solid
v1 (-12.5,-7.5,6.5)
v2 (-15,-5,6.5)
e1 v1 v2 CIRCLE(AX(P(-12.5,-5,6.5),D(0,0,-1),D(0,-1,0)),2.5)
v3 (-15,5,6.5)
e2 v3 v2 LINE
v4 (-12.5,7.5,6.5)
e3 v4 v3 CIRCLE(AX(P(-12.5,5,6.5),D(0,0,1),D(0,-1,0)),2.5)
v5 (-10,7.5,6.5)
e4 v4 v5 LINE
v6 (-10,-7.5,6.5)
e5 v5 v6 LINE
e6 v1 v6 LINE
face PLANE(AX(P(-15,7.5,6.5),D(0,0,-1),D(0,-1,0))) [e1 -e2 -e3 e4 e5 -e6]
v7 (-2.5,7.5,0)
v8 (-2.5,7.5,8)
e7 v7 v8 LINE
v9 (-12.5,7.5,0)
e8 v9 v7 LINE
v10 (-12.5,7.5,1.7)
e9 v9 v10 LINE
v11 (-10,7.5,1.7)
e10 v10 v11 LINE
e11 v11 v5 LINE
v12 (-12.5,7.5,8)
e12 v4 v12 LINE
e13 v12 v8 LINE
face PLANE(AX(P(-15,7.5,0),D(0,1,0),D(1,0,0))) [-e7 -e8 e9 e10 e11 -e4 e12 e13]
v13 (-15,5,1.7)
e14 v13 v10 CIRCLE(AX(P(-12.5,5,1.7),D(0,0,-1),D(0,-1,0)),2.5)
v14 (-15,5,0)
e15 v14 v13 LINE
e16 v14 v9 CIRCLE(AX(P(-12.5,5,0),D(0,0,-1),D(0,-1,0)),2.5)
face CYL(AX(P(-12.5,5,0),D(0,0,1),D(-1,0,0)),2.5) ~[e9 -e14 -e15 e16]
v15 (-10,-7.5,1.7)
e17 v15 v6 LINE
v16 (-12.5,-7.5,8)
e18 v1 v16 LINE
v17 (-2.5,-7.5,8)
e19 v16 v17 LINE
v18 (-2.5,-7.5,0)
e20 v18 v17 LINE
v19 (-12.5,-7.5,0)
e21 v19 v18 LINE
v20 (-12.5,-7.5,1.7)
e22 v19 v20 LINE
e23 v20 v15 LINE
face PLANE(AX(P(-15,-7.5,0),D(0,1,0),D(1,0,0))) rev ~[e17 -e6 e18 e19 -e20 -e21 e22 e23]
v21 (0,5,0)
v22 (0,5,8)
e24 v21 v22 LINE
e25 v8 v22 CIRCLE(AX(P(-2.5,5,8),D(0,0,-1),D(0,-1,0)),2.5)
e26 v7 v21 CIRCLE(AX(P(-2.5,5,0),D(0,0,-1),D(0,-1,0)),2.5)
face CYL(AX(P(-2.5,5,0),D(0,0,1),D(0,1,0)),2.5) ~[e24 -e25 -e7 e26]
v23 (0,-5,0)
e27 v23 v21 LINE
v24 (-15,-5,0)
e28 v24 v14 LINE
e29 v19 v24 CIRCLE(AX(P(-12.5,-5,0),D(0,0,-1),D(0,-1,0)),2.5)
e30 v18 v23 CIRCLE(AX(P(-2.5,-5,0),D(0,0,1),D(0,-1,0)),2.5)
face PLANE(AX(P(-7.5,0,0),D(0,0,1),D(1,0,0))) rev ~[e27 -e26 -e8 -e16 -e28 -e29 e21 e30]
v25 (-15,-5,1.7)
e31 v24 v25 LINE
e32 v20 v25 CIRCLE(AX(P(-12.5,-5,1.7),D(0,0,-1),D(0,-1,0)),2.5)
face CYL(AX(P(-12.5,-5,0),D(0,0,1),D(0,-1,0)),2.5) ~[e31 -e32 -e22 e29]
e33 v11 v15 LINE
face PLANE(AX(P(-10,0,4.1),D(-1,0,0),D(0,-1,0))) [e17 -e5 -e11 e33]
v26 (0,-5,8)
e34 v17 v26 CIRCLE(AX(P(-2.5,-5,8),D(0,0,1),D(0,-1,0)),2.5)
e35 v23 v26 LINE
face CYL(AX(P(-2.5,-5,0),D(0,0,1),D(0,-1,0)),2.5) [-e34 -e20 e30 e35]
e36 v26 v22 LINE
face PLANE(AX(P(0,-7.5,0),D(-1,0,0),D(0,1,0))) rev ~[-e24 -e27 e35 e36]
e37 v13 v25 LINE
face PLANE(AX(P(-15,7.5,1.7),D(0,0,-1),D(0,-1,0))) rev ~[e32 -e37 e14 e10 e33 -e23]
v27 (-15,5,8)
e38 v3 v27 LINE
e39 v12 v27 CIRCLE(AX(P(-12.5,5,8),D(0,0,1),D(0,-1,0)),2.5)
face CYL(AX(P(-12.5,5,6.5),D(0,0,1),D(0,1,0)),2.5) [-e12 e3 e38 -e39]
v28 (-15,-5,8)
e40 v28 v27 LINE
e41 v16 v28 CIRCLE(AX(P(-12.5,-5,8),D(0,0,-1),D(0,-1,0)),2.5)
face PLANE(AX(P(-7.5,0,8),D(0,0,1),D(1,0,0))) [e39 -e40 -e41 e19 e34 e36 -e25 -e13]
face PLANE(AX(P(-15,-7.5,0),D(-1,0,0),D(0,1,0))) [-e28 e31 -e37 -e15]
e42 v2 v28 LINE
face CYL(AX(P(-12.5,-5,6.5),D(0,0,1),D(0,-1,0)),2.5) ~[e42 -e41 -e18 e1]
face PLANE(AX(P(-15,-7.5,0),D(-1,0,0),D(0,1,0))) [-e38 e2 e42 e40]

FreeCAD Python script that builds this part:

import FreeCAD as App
import Part
import Sketcher
from FreeCAD import Vector


def edges_at(feature, points):
    """Names of the edges that pass closest to the given points."""
    edges = feature.Shape.Edges
    near = lambda p: min(range(len(edges)), key=lambda i: edges[i].distToShape(Part.Vertex(*p))[0])
    return sorted({f"Edge{near(p) + 1}" for p in points})

doc = App.newDocument("Part")
body = doc.addObject("PartDesign::Body", "Body")

sketch1 = body.newObject("Sketcher::SketchObject", "Sketch")
sketch1.AttachmentSupport = (doc.getObject("XY_Plane"), [""])
sketch1.MapMode = "FlatFace"
sketch1.addGeometry(Part.LineSegment(Vector(-15, 8, 0), Vector(-15, -8, 0)), False)
sketch1.addGeometry(Part.LineSegment(Vector(-15, -8, 0), Vector(0, -8, 0)), False)
sketch1.addGeometry(Part.LineSegment(Vector(0, -8, 0), Vector(0, 8, 0)), False)
sketch1.addGeometry(Part.LineSegment(Vector(0, 8, 0), Vector(-15, 8, 0)), False)
sketch1.addConstraint(Sketcher.Constraint("Coincident", 0, 2, 1, 1))
sketch1.addConstraint(Sketcher.Constraint("Coincident", 1, 2, 2, 1))
sketch1.addConstraint(Sketcher.Constraint("Coincident", 2, 2, 3, 1))
sketch1.addConstraint(Sketcher.Constraint("Coincident", 3, 2, 0, 1))
sketch1.addConstraint(Sketcher.Constraint("Vertical", 0))
sketch1.addConstraint(Sketcher.Constraint("Horizontal", 1))
sketch1.addConstraint(Sketcher.Constraint("Vertical", 2))
sketch1.addConstraint(Sketcher.Constraint("Horizontal", 3))
sketch1.addConstraint(Sketcher.Constraint("Symmetric", 1, 2, 2, 2, -1, 1))
sketch1.addConstraint(Sketcher.Constraint("Equal", 3, 0))
sketch1.addConstraint(Sketcher.Constraint("DistanceX", 1, 1, 1, 2, 15.0))
pad1 = body.newObject("PartDesign::Pad", "Pad")
pad1.Profile = sketch1
pad1.Length = 8

sketch2 = body.newObject("Sketcher::SketchObject", "Sketch001")
sketch2.AttachmentSupport = (doc.getObject("YZ_Plane"), [""])
sketch2.MapMode = "FlatFace"
sketch2.AttachmentOffset = App.Placement(Vector(0, 0, -15), App.Rotation())
sketch2.addGeometry(Part.LineSegment(Vector(7.5, 6.5, 0), Vector(7.5, 1.7, 0)), False)
sketch2.addGeometry(Part.LineSegment(Vector(7.5, 1.7, 0), Vector(-7.5, 1.7, 0)), False)
sketch2.addGeometry(Part.LineSegment(Vector(-7.5, 1.7, 0), Vector(-7.5, 6.5, 0)), False)
sketch2.addGeometry(Part.LineSegment(Vector(-7.5, 6.5, 0), Vector(7.5, 6.5, 0)), False)
sketch2.addConstraint(Sketcher.Constraint("Coincident", 0, 2, 1, 1))
sketch2.addConstraint(Sketcher.Constraint("Coincident", 1, 2, 2, 1))
sketch2.addConstraint(Sketcher.Constraint("Coincident", 2, 2, 3, 1))
sketch2.addConstraint(Sketcher.Constraint("Coincident", 3, 2, 0, 1))
sketch2.addConstraint(Sketcher.Constraint("Vertical", 0))
sketch2.addConstraint(Sketcher.Constraint("Horizontal", 1))
sketch2.addConstraint(Sketcher.Constraint("Vertical", 2))
sketch2.addConstraint(Sketcher.Constraint("Horizontal", 3))
sketch2.addConstraint(Sketcher.Constraint("DistanceX", 1, 2, 1, 1, 15.0))
sketch2.addConstraint(Sketcher.Constraint("DistanceY", 0, 2, 0, 1, 4.8))
sketch2.addConstraint(Sketcher.Constraint("DistanceX", -1, 1, 0, 2, 7.5))
sketch2.addConstraint(Sketcher.Constraint("DistanceY", -1, 1, 0, 2, 1.7))
pocket1 = body.newObject("PartDesign::Pocket", "Pocket")
pocket1.Profile = sketch2
pocket1.Length = 5
pocket1.Reversed = True
doc.recompute()

fillet = body.newObject("PartDesign::Fillet", "Fillet")
fillet.Base = (pocket1, edges_at(pocket1, [(0, -7.5, 4), (0, 7.5, 4)]))
fillet.Radius = 2.5
doc.recompute()

fillet2 = body.newObject("PartDesign::Fillet", "Fillet001")
fillet2.Base = (fillet, edges_at(fillet, [
    (-15, -7.5, 0.85),
    (-15, -7.5, 7.25),
    (-15, 7.5, 0.85),
    (-15, 7.5, 7.25),
]))
fillet2.Radius = 2.5

doc.recompute()
